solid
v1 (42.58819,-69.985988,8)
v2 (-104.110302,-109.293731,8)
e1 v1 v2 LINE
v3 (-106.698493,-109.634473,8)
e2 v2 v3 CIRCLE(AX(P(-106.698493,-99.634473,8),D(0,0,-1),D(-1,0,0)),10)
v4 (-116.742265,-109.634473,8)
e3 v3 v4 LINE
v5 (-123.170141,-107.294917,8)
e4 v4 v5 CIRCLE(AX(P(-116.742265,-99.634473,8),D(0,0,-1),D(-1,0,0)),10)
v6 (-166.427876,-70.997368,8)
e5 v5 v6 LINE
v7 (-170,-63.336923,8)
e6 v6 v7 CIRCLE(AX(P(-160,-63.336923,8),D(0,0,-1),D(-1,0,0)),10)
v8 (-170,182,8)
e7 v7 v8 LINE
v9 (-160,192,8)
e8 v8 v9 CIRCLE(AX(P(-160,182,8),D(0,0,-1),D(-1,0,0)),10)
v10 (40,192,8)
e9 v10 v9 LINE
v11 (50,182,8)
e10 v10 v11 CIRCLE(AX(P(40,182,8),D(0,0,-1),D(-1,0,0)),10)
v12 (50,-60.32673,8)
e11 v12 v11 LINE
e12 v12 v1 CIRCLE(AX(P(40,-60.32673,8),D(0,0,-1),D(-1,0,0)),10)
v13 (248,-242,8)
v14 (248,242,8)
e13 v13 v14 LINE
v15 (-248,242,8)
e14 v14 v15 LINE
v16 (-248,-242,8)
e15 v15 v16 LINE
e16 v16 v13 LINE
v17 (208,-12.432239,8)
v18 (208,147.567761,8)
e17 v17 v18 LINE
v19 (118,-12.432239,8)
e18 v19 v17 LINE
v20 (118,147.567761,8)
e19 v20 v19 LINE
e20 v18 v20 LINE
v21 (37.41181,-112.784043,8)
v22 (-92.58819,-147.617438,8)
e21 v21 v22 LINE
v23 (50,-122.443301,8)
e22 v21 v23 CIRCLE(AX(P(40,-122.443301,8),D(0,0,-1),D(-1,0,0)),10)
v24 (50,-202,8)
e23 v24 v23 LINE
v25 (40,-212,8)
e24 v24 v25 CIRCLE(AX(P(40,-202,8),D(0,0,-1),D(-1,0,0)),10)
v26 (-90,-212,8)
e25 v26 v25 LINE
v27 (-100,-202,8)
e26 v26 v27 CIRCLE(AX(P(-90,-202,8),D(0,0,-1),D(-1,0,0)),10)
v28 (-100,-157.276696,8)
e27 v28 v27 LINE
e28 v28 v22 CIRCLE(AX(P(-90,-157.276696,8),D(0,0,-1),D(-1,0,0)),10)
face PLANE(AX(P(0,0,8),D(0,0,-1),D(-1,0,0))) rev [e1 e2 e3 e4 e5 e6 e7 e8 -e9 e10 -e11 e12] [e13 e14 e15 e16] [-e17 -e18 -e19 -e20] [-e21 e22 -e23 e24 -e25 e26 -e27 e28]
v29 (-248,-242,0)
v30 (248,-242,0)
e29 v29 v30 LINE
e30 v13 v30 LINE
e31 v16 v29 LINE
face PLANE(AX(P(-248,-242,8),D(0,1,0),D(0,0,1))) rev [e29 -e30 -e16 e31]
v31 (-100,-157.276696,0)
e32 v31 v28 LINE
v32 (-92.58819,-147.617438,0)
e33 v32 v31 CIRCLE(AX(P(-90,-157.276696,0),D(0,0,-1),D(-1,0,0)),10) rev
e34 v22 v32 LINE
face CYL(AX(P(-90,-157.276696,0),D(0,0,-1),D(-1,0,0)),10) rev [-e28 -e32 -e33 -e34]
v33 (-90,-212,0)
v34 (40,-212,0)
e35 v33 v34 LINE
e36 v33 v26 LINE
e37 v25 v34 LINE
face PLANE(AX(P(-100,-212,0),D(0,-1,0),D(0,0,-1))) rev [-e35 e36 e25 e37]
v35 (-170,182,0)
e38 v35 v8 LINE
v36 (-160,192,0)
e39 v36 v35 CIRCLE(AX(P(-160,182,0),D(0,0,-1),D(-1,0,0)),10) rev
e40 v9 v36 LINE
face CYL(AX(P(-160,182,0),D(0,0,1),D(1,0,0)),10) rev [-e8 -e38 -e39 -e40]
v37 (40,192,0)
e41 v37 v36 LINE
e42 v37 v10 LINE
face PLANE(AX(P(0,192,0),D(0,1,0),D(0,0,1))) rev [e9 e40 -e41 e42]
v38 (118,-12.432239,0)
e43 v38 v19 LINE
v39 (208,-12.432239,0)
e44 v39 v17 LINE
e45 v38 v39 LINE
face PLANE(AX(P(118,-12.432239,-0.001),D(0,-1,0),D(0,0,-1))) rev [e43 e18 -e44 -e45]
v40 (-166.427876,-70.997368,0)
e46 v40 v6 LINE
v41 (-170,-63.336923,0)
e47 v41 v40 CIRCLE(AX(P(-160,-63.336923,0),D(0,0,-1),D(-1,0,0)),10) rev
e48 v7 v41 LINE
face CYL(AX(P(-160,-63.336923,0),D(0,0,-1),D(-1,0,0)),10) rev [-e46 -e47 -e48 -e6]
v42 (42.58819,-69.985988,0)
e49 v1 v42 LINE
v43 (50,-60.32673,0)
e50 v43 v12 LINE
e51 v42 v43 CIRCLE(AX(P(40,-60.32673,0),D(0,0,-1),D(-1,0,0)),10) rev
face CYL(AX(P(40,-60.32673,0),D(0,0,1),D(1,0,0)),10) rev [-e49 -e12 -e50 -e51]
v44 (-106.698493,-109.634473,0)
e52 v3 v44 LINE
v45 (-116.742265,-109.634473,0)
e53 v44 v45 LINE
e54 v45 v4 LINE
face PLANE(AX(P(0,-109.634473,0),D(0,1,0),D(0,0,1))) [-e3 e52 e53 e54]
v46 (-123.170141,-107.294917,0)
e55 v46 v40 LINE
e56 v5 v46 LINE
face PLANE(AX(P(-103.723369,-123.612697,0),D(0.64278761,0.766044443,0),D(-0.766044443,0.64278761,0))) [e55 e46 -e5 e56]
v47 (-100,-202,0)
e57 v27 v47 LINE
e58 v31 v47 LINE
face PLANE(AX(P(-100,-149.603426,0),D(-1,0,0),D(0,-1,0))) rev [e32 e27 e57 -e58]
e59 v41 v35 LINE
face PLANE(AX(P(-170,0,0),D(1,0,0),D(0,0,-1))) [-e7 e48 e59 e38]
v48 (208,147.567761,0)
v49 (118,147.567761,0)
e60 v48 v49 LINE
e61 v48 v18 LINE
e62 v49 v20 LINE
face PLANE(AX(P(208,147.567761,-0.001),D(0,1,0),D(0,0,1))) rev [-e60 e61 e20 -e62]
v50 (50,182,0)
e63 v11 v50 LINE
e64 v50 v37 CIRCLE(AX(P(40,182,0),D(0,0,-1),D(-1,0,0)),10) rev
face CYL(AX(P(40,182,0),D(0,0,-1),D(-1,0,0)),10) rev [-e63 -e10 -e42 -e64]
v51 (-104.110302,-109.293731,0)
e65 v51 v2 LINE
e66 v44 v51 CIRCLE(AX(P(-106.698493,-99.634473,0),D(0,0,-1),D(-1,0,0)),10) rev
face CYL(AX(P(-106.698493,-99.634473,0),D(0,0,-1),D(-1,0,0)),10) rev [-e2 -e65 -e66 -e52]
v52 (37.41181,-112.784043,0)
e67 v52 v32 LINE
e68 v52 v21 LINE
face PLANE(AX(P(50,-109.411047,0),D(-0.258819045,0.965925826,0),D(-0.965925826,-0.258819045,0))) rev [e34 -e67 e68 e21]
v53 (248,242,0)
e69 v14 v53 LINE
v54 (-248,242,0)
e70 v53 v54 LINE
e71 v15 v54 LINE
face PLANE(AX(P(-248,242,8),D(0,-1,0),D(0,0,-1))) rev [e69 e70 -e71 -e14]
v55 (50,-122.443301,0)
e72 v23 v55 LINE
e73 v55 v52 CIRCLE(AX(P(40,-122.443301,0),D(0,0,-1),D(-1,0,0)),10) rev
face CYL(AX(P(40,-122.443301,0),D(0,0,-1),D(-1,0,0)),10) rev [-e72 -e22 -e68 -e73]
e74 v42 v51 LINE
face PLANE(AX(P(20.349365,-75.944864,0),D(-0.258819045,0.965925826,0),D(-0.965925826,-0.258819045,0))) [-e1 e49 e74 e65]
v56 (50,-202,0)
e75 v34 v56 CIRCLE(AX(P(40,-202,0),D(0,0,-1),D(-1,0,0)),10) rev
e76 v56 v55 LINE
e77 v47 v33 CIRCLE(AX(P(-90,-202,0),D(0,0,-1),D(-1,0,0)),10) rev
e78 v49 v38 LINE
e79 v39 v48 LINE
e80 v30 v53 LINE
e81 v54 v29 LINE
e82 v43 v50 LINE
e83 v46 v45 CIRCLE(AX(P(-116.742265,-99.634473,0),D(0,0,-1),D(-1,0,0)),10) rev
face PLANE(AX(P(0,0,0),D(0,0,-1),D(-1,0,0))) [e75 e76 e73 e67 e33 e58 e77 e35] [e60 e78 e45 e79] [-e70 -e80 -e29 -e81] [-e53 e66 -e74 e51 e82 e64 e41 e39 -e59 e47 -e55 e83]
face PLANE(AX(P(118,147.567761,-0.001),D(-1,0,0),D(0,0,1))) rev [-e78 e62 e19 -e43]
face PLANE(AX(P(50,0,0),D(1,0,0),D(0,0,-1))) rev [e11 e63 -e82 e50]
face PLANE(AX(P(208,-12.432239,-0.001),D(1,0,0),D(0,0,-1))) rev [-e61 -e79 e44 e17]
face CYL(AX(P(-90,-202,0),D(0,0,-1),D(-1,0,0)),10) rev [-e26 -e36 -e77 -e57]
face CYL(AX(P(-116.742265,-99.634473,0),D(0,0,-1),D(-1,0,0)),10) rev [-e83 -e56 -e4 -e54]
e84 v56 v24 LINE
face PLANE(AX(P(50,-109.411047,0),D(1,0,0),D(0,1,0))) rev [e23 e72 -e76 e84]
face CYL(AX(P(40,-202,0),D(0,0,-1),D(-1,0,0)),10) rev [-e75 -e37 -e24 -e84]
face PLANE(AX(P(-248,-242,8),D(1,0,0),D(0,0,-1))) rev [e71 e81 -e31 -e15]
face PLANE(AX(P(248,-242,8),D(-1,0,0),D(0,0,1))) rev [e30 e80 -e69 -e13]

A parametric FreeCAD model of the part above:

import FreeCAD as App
import Part
import Sketcher
Q = App.Units.Quantity


def edges_at(feature, points):
    """Names of the edges that pass closest to the given points."""
    edges = feature.Shape.Edges
    near = lambda p: min(range(len(edges)), key=lambda i: edges[i].distToShape(Part.Vertex(*p))[0])
    return sorted({f"Edge{near(p) + 1}" for p in points})

doc = App.newDocument("Part")
body = doc.addObject("PartDesign::Body", "Body")

# Sketch on XY plane
sketch1 = body.newObject("Sketcher::SketchObject", "Sketch")
sketch1.AttachmentSupport = (doc.getObject("XY_Plane"), [""])
sketch1.MapMode = "FlatFace"
sketch1.addGeometry(Part.LineSegment(App.Vector(-248, 242, 0), App.Vector(-248, -242, 0)), False)
sketch1.addGeometry(Part.LineSegment(App.Vector(-248, -242, 0), App.Vector(248, -242, 0)), False)
sketch1.addGeometry(Part.LineSegment(App.Vector(248, -242, 0), App.Vector(248, 242, 0)), False)
sketch1.addGeometry(Part.LineSegment(App.Vector(248, 242, 0), App.Vector(-248, 242, 0)), False)
sketch1.addConstraint(Sketcher.Constraint("Coincident", 0, 2, 1, 1))
sketch1.addConstraint(Sketcher.Constraint("Coincident", 1, 2, 2, 1))
sketch1.addConstraint(Sketcher.Constraint("Coincident", 2, 2, 3, 1))
sketch1.addConstraint(Sketcher.Constraint("Coincident", 3, 2, 0, 1))
sketch1.addConstraint(Sketcher.Constraint("Vertical", 0))
sketch1.addConstraint(Sketcher.Constraint("Horizontal", 1))
sketch1.addConstraint(Sketcher.Constraint("Vertical", 2))
sketch1.addConstraint(Sketcher.Constraint("Horizontal", 3))
sketch1.addConstraint(Sketcher.Constraint("Symmetric", 0, 2, 2, 2, -1, 1))
sketch1.addConstraint(Sketcher.Constraint("DistanceX", 1, 1, 1, 2, Q("496 mm")))
sketch1.addConstraint(Sketcher.Constraint("DistanceY", 0, 2, 0, 1, Q("484 mm")))
pad1 = body.newObject("PartDesign::Pad", "Pad")
pad1.Profile = sketch1
pad1.Length = 8

# Sketch on XY plane
sketch2 = body.newObject("Sketcher::SketchObject", "Sketch001")
sketch2.AttachmentSupport = (doc.getObject("XY_Plane"), [""])
sketch2.MapMode = "FlatFace"
sketch2.AttachmentOffset = App.Placement(App.Vector(0, 0, 8), App.Rotation())
sketch2.addGeometry(Part.LineSegment(App.Vector(-170, 192, 0), App.Vector(-170, -68, 0)), False)
sketch2.addGeometry(Part.LineSegment(App.Vector(-170, -68, 0), App.Vector(-120, -110, 0)), False)
sketch2.addGeometry(Part.LineSegment(App.Vector(-120, -110, 0), App.Vector(-105, -110, 0)), False)
sketch2.addGeometry(Part.LineSegment(App.Vector(-105, -110, 0), App.Vector(50, -68, 0)), False)
sketch2.addGeometry(Part.LineSegment(App.Vector(50, -68, 0), App.Vector(50, 192, 0)), False)
sketch2.addGeometry(Part.LineSegment(App.Vector(50, 192, 0), App.Vector(-170, 192, 0)), False)
sketch2.addConstraint(Sketcher.Constraint("Coincident", 0, 2, 1, 1))
sketch2.addConstraint(Sketcher.Constraint("Coincident", 1, 2, 2, 1))
sketch2.addConstraint(Sketcher.Constraint("Coincident", 2, 2, 3, 1))
sketch2.addConstraint(Sketcher.Constraint("Coincident", 3, 2, 4, 1))
sketch2.addConstraint(Sketcher.Constraint("Coincident", 4, 2, 5, 1))
sketch2.addConstraint(Sketcher.Constraint("Coincident", 5, 2, 0, 1))
sketch2.addConstraint(Sketcher.Constraint("Vertical", 0))
sketch2.addConstraint(Sketcher.Constraint("Horizontal", 2))
sketch2.addConstraint(Sketcher.Constraint("Vertical", 4))
sketch2.addConstraint(Sketcher.Constraint("Horizontal", 5))
sketch2.addConstraint(Sketcher.Constraint("Horizontal", 0, 2, 3, 2))
sketch2.addConstraint(Sketcher.Constraint("DistanceX", 2, 1, 2, 2, Q("15 mm")))
sketch2.addConstraint(Sketcher.Constraint("DistanceX", 5, 2, 5, 1, Q("220 mm")))
sketch2.addConstraint(Sketcher.Constraint("DistanceY", 0, 2, 0, 1, Q("260 mm")))
sketch2.addConstraint(Sketcher.Constraint("Angle", 1, Q("-40 deg")))
sketch2.addConstraint(Sketcher.Constraint("Angle", 3, Q("15 deg")))
sketch2.addConstraint(Sketcher.Constraint("DistanceX", 0, 2, -1, 1, Q("170 mm")))
sketch2.addConstraint(Sketcher.Constraint("DistanceY", 0, 2, -1, 1, Q("68 mm")))
pocket1 = body.newObject("PartDesign::Pocket", "Pocket")
pocket1.Profile = sketch2
pocket1.Type = "ThroughAll"

# Sketch on XY plane
sketch3 = body.newObject("Sketcher::SketchObject", "Sketch002")
sketch3.AttachmentSupport = (doc.getObject("XY_Plane"), [""])
sketch3.MapMode = "FlatFace"
sketch3.AttachmentOffset = App.Placement(App.Vector(0, 0, 8), App.Rotation())
sketch3.addGeometry(Part.LineSegment(App.Vector(50, -212, 0), App.Vector(50, -109, 0)), False)
sketch3.addGeometry(Part.LineSegment(App.Vector(50, -109, 0), App.Vector(-100, -150, 0)), False)
sketch3.addGeometry(Part.LineSegment(App.Vector(-100, -150, 0), App.Vector(-100, -212, 0)), False)
sketch3.addGeometry(Part.LineSegment(App.Vector(-100, -212, 0), App.Vector(50, -212, 0)), False)
sketch3.addConstraint(Sketcher.Constraint("Coincident", 0, 2, 1, 1))
sketch3.addConstraint(Sketcher.Constraint("Coincident", 1, 2, 2, 1))
sketch3.addConstraint(Sketcher.Constraint("Coincident", 2, 2, 3, 1))
sketch3.addConstraint(Sketcher.Constraint("Coincident", 3, 2, 0, 1))
sketch3.addConstraint(Sketcher.Constraint("Vertical", 0))
sketch3.addConstraint(Sketcher.Constraint("Vertical", 2))
sketch3.addConstraint(Sketcher.Constraint("Horizontal", 3))
sketch3.addConstraint(Sketcher.Constraint("DistanceX", 3, 1, 3, 2, Q("150 mm")))
sketch3.addConstraint(Sketcher.Constraint("Angle", 1, Q("-165 deg")))
sketch3.addConstraint(Sketcher.Constraint("DistanceX", -1, 1, 0, 2, Q("50 mm")))
sketch3.addConstraint(Sketcher.Constraint("DistanceY", 2, 2, -1, 1, Q("212 mm")))
sketch3.addConstraint(Sketcher.Constraint("DistanceY", 0, 1, 0, 2, Q("102.588953 mm")))
pocket2 = body.newObject("PartDesign::Pocket", "Pocket001")
pocket2.Profile = sketch3
pocket2.Type = "ThroughAll"
doc.recompute()

fillet = body.newObject("PartDesign::Fillet", "Fillet")
fillet.Base = (pocket2, edges_at(pocket2, [
    (50, -212, 4),
    (-100, -212, 4),
    (-100, -149.603, 4),
    (50, -109.411, 4),
]))
fillet.Radius = 10
doc.recompute()

fillet2 = body.newObject("PartDesign::Fillet", "Fillet001")
fillet2.Base = (fillet, edges_at(fillet, [
    (-170, -68, 4),
    (-170, 192, 4),
    (50, 192, 4),
    (50, -68, 4),
    (-105.382, -109.634, 4),
    (-120.382, -109.634, 4),
]))
fillet2.Radius = 10

# Sketch on XY plane
sketch4 = body.newObject("Sketcher::SketchObject", "Sketch003")
sketch4.AttachmentSupport = (doc.getObject("XY_Plane"), [""])
sketch4.MapMode = "FlatFace"
sketch4.AttachmentOffset = App.Placement(App.Vector(0, 0, 8), App.Rotation())
sketch4.addGeometry(Part.LineSegment(App.Vector(118, 148, 0), App.Vector(118, -12, 0)), False)
sketch4.addGeometry(Part.LineSegment(App.Vector(118, -12, 0), App.Vector(208, -12, 0)), False)
sketch4.addGeometry(Part.LineSegment(App.Vector(208, -12, 0), App.Vector(208, 148, 0)), False)
sketch4.addGeometry(Part.LineSegment(App.Vector(208, 148, 0), App.Vector(118, 148, 0)), False)
sketch4.addConstraint(Sketcher.Constraint("Coincident", 0, 2, 1, 1))
sketch4.addConstraint(Sketcher.Constraint("Coincident", 1, 2, 2, 1))
sketch4.addConstraint(Sketcher.Constraint("Coincident", 2, 2, 3, 1))
sketch4.addConstraint(Sketcher.Constraint("Coincident", 3, 2, 0, 1))
sketch4.addConstraint(Sketcher.Constraint("Vertical", 0))
sketch4.addConstraint(Sketcher.Constraint("Horizontal", 1))
sketch4.addConstraint(Sketcher.Constraint("Vertical", 2))
sketch4.addConstraint(Sketcher.Constraint("Horizontal", 3))
sketch4.addConstraint(Sketcher.Constraint("DistanceX", 1, 1, 1, 2, Q("90 mm")))
sketch4.addConstraint(Sketcher.Constraint("DistanceY", 0, 2, 0, 1, Q("160 mm")))
sketch4.addConstraint(Sketcher.Constraint("DistanceX", -1, 1, 0, 2, Q("118 mm")))
sketch4.addConstraint(Sketcher.Constraint("DistanceY", 0, 2, -1, 1, Q("12.432239 mm")))
pocket3 = body.newObject("PartDesign::Pocket", "Pocket002")
pocket3.Profile = sketch4
pocket3.Type = "UpToFirst"

doc.recompute()
